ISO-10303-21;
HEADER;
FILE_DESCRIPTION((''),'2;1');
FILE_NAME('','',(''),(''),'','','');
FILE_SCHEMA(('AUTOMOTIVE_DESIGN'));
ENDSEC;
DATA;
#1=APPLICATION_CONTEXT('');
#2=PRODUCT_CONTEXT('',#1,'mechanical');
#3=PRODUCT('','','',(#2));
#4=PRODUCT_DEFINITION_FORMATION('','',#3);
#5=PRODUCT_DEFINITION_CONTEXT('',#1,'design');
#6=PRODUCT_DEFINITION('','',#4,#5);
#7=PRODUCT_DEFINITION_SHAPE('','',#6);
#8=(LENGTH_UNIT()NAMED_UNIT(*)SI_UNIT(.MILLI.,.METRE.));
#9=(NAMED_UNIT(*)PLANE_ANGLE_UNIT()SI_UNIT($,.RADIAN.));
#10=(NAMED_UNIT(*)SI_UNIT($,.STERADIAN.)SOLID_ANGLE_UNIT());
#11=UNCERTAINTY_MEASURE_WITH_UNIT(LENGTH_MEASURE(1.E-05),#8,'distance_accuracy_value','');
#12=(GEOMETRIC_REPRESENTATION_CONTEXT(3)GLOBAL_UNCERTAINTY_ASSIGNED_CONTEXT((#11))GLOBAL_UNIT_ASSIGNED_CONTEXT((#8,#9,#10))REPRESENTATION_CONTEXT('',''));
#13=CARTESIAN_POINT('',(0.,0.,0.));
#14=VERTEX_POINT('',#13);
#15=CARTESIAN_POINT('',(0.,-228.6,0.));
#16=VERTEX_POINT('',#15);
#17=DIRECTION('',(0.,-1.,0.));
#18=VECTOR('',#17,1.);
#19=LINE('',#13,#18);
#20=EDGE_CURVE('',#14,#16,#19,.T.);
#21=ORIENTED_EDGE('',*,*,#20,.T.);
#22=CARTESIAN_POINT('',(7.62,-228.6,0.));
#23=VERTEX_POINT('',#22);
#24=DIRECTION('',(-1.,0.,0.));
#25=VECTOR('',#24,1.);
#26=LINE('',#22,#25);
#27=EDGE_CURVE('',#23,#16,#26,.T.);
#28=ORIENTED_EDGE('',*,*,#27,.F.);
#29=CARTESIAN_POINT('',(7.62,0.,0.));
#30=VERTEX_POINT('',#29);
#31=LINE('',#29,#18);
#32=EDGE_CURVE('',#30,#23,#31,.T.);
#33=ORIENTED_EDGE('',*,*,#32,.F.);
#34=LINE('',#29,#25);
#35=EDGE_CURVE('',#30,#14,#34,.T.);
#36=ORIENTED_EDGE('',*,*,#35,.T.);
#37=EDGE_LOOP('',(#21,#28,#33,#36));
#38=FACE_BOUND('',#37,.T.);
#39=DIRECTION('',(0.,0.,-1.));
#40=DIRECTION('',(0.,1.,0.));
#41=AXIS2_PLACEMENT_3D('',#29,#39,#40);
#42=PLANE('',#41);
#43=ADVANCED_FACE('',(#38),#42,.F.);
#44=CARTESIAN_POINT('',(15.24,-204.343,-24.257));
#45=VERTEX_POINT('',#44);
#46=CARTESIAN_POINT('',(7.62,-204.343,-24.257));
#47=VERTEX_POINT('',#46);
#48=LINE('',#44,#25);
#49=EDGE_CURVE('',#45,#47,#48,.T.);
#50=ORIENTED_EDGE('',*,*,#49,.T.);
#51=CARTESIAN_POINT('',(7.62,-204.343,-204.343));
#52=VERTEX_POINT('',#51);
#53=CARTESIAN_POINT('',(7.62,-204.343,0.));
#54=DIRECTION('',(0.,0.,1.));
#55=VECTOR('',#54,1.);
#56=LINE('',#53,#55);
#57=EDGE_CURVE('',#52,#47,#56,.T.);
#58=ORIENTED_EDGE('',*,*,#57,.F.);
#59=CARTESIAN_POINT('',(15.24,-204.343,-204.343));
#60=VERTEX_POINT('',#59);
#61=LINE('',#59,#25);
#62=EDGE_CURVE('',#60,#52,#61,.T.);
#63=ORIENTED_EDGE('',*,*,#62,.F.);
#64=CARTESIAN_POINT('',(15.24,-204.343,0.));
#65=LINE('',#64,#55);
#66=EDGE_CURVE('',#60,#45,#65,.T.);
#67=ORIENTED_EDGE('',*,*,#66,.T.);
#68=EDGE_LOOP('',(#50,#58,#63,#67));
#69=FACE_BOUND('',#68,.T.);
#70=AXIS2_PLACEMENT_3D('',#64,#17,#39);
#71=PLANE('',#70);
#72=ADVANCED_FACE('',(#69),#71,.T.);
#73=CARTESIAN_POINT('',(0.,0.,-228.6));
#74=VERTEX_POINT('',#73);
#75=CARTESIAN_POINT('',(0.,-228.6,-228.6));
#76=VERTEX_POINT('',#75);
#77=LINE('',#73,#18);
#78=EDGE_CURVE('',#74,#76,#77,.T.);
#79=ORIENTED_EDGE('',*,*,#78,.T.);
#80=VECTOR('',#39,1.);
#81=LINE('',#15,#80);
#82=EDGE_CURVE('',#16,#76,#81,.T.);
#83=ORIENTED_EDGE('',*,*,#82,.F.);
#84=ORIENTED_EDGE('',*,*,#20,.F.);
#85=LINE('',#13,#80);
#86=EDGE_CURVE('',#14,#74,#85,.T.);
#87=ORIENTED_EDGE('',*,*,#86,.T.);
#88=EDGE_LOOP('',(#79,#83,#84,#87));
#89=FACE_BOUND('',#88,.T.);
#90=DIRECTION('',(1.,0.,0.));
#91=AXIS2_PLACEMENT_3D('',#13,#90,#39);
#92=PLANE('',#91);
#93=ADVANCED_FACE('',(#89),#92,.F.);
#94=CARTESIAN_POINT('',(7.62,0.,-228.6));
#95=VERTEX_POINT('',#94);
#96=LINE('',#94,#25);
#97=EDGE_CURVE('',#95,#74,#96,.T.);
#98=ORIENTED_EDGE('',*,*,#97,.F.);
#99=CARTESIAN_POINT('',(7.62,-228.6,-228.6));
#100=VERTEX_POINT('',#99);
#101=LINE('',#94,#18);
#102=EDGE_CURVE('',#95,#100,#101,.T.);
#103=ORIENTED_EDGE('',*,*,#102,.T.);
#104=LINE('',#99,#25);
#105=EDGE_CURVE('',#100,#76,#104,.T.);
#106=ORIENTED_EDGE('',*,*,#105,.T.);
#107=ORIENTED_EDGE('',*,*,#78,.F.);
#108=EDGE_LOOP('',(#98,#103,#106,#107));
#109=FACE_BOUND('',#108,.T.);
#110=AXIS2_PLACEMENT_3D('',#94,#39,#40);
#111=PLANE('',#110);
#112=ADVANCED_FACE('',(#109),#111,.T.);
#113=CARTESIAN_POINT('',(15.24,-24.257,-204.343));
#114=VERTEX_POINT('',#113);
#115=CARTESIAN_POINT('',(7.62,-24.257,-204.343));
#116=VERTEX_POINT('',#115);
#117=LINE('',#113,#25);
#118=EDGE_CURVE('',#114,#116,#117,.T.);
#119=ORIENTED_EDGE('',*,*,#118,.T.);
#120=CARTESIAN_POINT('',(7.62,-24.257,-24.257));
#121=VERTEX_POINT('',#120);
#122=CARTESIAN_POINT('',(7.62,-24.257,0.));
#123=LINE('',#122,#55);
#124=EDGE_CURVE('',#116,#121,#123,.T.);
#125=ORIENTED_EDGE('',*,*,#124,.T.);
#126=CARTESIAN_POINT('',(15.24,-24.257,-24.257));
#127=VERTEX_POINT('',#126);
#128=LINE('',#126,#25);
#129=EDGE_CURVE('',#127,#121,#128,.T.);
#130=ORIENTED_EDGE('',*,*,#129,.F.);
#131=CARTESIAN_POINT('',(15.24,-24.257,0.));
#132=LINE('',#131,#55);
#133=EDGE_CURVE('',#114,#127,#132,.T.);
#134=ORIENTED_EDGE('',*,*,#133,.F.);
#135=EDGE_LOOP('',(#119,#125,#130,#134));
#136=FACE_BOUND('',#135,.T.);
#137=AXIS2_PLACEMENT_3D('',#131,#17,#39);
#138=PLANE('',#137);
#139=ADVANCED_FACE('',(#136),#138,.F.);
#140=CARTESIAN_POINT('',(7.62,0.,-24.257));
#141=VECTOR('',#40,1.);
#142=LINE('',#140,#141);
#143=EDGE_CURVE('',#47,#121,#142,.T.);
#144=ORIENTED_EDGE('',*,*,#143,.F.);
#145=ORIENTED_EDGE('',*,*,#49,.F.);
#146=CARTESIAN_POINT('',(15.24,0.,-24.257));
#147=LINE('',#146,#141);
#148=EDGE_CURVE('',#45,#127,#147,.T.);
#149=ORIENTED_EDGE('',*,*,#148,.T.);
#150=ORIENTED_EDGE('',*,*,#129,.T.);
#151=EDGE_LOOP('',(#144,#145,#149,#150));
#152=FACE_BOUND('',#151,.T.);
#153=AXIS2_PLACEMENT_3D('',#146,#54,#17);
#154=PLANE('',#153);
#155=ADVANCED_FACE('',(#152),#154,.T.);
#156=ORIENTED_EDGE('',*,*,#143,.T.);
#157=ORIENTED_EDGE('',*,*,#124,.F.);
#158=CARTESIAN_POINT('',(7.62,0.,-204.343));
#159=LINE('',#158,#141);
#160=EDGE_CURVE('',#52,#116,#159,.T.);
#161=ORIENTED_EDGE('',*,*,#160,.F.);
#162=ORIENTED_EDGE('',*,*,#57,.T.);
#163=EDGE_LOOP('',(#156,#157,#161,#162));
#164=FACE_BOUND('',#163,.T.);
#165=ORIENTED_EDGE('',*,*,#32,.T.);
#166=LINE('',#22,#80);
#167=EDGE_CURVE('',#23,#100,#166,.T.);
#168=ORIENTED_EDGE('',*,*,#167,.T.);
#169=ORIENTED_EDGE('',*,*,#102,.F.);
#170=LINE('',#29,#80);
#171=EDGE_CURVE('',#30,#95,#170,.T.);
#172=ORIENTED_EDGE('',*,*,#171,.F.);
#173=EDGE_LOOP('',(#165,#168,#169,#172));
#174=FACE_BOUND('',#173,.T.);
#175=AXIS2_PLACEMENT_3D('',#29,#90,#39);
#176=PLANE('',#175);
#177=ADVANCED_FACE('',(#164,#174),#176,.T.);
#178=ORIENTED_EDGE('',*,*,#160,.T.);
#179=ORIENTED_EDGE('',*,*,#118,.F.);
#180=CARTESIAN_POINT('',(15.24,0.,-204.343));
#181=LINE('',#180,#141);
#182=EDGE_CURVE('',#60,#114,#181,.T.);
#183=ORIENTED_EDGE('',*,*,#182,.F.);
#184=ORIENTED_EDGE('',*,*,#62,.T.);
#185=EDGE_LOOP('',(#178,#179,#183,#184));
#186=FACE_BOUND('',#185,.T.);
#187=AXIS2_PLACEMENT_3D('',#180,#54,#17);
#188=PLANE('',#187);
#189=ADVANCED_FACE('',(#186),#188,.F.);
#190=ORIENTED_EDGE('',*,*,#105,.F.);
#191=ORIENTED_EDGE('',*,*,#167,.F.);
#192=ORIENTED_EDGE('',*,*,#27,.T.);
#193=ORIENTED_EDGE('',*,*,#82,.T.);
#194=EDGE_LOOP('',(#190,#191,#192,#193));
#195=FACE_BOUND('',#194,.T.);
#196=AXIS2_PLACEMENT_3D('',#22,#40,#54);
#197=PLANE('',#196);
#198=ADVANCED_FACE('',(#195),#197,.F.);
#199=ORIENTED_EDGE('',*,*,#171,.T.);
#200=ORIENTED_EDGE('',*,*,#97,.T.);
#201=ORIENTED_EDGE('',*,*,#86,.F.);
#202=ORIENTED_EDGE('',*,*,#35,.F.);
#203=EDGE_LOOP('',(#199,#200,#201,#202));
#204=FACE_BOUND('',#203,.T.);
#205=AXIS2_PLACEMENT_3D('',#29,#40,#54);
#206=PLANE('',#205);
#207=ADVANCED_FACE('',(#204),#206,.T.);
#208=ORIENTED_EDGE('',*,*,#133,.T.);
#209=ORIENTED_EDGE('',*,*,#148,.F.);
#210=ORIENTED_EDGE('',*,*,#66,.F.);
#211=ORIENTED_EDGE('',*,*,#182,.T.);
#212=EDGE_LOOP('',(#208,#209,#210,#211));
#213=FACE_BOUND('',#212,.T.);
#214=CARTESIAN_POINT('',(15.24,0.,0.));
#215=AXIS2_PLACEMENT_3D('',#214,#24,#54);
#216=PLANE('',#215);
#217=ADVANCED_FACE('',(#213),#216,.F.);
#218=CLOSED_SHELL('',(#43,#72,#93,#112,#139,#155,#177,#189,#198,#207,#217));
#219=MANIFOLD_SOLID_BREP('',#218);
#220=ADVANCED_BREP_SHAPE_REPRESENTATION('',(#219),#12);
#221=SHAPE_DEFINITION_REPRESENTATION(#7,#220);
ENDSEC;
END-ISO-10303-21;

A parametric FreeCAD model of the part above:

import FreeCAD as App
import Part
import Sketcher

V = App.Vector
Q = App.Units.Quantity


def add_polygon(sketch, points):
    """Adds a closed chain of lines whose ends are joined by coincident constraints."""
    first, n = sketch.GeometryCount, len(points)
    for a, b in zip(points, points[1:] + points[:1]):
        sketch.addGeometry(Part.LineSegment(App.Vector(*a, 0), App.Vector(*b, 0)), False)
    for i in range(n):
        sketch.addConstraint(Sketcher.Constraint("Coincident", first + i, 2, first + (i + 1) % n, 1))

doc = App.newDocument("Part")
params = doc.addObject("Spreadsheet::Sheet", "Params")
for row, (alias, value) in enumerate([
    ("sketch1_width", "9 in"),
    ("pad1_length", "0.3 in"),
    ("sketch2_width", "7.09 in"),
    ("pad2_length", "0.3 in"),
], start=1):
    params.set(f"A{row}", alias)
    params.set(f"B{row}", "=" + value)
    params.setAlias(f"B{row}", alias)

body = doc.addObject("PartDesign::Body", "Body")

# Sketch on YZ plane
sketch1 = doc.addObject("Sketcher::SketchObject", "Sketch")
body.addObject(sketch1)
sketch1.AttachmentSupport = (doc.YZ_Plane, [""])
sketch1.MapMode = "FlatFace"
add_polygon(sketch1, [(0, 0), (-229, 0), (-229, -229), (0, -229)])  # lines 0-3
sketch1.addConstraint([
    Sketcher.Constraint("Horizontal", 0),
    Sketcher.Constraint("Vertical", 1),
    Sketcher.Constraint("Horizontal", 2),
    Sketcher.Constraint("Vertical", 3),
    Sketcher.Constraint("Coincident", 3, 2, -1, 1),
    Sketcher.Constraint("Equal", 2, 1),
    Sketcher.Constraint("DistanceX", 0, 2, 0, 1, Q("9 in")),
])
sketch1.setExpression("Constraints[10]", "Params.sketch1_width")
pad1 = doc.addObject("PartDesign::Pad", "Pad")
body.addObject(pad1)
pad1.Profile = sketch1
pad1.setExpression("Length", "Params.pad1_length")

# Sketch on YZ plane
sketch2 = doc.addObject("Sketcher::SketchObject", "Sketch001")
body.addObject(sketch2)
sketch2.AttachmentSupport = (doc.YZ_Plane, [""])
sketch2.MapMode = "FlatFace"
sketch2.AttachmentOffset = App.Placement(V(0, 0, 0.3 * 25.4), App.Rotation())
add_polygon(sketch2, [(-24, -24), (-204, -24), (-204, -204), (-24, -204)])  # lines 0-3
sketch2.addConstraint([
    Sketcher.Constraint("Horizontal", 0),
    Sketcher.Constraint("Vertical", 1),
    Sketcher.Constraint("Horizontal", 2),
    Sketcher.Constraint("Vertical", 3),
    Sketcher.Constraint("Equal", 2, 1),
    Sketcher.Constraint("DistanceX", 0, 2, 0, 1, Q("7.09 in")),
    Sketcher.Constraint("DistanceX", 0, 2, -1, 1, Q("8.045 in")),
    Sketcher.Constraint("DistanceY", 0, 2, -1, 1, Q("0.955 in")),
])
sketch2.setExpression("Constraints[9]", "Params.sketch2_width")
pad2 = doc.addObject("PartDesign::Pad", "Pad001")
body.addObject(pad2)
pad2.Profile = sketch2
pad2.setExpression("Length", "Params.pad2_length")

doc.recompute()
